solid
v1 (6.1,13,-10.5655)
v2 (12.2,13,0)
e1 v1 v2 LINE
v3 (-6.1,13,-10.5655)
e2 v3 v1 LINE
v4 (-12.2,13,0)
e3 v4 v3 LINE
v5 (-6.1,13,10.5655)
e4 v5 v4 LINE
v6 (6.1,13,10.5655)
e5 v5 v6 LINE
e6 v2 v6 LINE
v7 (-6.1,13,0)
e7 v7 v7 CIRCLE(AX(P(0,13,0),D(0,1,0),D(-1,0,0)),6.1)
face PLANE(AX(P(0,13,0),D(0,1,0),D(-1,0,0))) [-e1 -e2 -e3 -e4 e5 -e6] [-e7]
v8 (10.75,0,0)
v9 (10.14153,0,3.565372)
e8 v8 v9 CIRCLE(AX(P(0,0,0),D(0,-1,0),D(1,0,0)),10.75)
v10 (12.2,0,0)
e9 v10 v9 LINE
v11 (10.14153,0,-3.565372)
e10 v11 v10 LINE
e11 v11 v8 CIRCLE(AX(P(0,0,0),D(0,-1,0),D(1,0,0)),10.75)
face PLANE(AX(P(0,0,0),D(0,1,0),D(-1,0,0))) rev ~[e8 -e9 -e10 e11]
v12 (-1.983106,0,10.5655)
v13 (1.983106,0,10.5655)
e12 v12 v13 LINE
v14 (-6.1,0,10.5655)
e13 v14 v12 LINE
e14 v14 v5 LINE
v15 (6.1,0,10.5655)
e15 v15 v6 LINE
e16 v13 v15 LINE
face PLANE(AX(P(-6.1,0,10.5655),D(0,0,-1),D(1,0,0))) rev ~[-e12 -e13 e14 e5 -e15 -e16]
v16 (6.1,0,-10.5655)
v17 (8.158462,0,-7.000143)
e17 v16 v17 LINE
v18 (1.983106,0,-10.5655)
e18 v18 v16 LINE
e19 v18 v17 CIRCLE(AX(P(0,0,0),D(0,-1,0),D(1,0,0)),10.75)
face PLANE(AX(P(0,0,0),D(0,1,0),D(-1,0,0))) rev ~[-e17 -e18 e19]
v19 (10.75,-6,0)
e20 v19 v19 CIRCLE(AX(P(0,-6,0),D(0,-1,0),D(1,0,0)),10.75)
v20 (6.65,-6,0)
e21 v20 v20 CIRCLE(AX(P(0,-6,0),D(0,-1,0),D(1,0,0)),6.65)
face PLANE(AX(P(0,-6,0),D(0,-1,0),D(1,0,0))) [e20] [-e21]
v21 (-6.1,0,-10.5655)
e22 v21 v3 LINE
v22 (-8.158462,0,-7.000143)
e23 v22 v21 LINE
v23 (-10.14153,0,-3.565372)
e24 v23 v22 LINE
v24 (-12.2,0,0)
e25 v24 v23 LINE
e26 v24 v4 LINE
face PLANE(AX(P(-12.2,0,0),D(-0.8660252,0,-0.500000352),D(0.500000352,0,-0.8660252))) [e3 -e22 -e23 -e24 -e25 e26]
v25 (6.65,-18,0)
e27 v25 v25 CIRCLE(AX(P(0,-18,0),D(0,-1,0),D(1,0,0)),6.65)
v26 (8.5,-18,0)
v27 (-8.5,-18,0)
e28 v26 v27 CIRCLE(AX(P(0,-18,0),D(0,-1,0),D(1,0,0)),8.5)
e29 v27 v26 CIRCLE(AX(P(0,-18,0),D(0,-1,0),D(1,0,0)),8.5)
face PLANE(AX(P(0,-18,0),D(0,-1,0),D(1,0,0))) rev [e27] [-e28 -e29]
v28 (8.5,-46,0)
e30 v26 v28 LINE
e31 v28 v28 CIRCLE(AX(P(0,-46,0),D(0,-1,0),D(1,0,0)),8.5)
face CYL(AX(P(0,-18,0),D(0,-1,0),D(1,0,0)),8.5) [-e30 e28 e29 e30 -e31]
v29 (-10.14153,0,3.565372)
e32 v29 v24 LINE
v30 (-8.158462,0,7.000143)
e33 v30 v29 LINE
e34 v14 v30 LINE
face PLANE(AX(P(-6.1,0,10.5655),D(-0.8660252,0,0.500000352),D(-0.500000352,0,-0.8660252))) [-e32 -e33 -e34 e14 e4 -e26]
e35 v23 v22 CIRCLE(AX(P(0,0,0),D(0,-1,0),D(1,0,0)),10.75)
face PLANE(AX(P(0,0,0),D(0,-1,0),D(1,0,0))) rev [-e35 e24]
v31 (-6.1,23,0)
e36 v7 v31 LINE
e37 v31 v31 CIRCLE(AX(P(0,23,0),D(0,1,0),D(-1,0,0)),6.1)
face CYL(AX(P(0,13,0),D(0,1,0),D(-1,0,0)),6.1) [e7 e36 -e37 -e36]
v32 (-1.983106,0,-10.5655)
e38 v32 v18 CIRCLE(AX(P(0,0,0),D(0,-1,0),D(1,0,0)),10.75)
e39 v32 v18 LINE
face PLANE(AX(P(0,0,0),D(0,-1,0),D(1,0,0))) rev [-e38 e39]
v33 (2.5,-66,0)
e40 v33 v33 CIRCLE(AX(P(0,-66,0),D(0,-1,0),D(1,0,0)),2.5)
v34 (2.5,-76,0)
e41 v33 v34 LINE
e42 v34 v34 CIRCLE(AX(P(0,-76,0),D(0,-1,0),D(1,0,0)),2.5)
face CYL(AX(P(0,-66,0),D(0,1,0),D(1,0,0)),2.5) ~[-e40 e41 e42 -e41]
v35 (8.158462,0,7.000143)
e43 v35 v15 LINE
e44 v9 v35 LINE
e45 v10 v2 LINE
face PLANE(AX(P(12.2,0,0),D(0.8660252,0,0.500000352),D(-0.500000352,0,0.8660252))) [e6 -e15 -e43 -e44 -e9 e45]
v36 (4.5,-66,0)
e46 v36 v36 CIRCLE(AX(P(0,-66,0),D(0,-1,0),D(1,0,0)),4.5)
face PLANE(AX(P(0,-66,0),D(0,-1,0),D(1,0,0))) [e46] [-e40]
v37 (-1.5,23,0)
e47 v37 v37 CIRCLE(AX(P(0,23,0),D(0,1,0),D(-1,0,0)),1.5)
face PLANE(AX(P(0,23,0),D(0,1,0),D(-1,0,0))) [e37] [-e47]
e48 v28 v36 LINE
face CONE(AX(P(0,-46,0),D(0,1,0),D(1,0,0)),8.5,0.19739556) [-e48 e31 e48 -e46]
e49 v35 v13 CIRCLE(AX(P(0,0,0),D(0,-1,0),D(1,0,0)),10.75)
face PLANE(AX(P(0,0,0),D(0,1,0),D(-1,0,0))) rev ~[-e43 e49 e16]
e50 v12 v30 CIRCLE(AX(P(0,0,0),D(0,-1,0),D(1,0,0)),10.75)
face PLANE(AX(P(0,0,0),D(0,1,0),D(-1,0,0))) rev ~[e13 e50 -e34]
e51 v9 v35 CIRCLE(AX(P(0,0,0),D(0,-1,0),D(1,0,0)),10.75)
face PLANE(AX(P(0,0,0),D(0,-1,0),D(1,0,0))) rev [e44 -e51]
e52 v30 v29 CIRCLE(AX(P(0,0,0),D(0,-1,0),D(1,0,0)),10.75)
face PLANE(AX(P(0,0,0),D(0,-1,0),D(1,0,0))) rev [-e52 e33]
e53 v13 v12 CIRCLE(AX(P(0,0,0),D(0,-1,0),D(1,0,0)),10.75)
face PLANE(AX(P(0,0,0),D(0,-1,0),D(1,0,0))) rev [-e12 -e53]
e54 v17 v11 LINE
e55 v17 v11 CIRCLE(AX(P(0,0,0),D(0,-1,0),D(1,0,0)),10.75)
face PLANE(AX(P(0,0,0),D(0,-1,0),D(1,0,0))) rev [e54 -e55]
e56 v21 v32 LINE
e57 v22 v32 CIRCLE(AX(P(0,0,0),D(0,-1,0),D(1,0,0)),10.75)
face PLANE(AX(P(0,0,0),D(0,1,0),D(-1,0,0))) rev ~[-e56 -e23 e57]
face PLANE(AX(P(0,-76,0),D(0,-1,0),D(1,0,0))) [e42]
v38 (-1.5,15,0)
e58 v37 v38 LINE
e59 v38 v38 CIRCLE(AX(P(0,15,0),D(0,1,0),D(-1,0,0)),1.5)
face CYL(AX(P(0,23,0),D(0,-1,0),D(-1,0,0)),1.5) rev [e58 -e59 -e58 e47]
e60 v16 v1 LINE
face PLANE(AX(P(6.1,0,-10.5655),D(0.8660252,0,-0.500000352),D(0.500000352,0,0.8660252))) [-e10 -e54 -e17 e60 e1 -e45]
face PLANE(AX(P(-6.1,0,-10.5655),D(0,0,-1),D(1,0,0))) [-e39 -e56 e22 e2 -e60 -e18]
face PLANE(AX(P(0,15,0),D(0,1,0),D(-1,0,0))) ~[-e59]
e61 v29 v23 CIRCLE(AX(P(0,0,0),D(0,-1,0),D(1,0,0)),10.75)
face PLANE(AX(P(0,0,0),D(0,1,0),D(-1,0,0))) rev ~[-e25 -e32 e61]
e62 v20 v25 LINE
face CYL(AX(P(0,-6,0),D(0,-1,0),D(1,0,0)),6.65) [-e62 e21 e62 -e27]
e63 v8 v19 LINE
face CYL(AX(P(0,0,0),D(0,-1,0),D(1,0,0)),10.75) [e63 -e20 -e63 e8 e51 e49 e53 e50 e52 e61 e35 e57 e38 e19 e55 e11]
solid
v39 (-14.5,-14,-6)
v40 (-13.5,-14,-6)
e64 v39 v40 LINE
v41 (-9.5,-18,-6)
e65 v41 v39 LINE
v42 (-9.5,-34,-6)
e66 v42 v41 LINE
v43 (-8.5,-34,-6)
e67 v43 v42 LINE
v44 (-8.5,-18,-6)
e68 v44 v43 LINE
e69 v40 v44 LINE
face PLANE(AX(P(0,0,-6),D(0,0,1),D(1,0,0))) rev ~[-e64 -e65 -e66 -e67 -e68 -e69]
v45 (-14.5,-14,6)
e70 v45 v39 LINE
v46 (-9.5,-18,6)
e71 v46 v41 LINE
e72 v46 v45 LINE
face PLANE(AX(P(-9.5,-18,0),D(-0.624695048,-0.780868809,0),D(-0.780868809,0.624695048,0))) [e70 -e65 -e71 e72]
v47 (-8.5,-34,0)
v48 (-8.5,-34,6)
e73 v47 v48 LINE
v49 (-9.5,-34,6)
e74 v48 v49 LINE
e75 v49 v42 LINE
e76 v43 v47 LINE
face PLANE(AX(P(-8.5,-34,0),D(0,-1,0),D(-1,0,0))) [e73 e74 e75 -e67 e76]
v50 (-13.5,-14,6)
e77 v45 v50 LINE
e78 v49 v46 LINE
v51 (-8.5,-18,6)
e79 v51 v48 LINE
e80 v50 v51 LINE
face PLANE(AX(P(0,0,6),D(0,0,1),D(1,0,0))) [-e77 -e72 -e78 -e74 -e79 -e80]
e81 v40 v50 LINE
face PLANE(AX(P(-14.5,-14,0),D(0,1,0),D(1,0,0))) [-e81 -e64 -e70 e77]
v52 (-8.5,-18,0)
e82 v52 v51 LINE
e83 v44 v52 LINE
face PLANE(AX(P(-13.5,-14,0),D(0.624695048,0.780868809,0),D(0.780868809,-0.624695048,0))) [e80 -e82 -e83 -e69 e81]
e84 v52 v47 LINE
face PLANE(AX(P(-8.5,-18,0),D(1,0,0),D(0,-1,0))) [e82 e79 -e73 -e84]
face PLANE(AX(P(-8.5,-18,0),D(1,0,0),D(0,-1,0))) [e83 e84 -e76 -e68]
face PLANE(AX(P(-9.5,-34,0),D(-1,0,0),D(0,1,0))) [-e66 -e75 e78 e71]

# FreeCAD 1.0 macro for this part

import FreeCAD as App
import Part
import Sketcher

V = App.Vector
Q = App.Units.Quantity


def add_polygon(sketch, points):
    """Adds a closed chain of lines whose ends are joined by coincident constraints."""
    first, n = sketch.GeometryCount, len(points)
    for a, b in zip(points, points[1:] + points[:1]):
        sketch.addGeometry(Part.LineSegment(App.Vector(*a, 0), App.Vector(*b, 0)), False)
    for i in range(n):
        sketch.addConstraint(Sketcher.Constraint("Coincident", first + i, 2, first + (i + 1) % n, 1))

doc = App.newDocument("Part")
body = doc.addObject("PartDesign::Body", "Body")
body.AllowCompound = True

sketch1 = body.newObject("Sketcher::SketchObject", "Sketch")
sketch1.AttachmentSupport = (doc.getObject("XY_Plane"), [""])
sketch1.MapMode = "FlatFace"
add_polygon(sketch1, [(10.8, 0), (0, 0), (0, -66), (4.5, -66), (8.5, -46), (8.5, -18), (6.7, -18), (6.7, -6), (10.8, -6)])
sketch1.addConstraint([
    Sketcher.Constraint("Horizontal", 0),
    Sketcher.Constraint("Vertical", 1),
    Sketcher.Constraint("Horizontal", 2),
    Sketcher.Constraint("Vertical", 4),
    Sketcher.Constraint("Horizontal", 5),
    Sketcher.Constraint("Vertical", 6),
    Sketcher.Constraint("Horizontal", 7),
    Sketcher.Constraint("Vertical", 8),
    Sketcher.Constraint("Coincident", 0, 2, -1, 1),
    Sketcher.Constraint("DistanceY", 4, 1, 4, 2, 28.0),
    Sketcher.Constraint("DistanceY", 6, 1, 6, 2, 12.0),
    Sketcher.Constraint("DistanceY", 8, 1, 8, 2, 6.0),
    Sketcher.Constraint("DistanceX", 2, 1, 2, 2, 4.5),
    Sketcher.Constraint("DistanceX", 7, 1, 7, 2, 4.1),
    Sketcher.Constraint("DistanceY", 2, 2, 3, 2, 20.0),
    Sketcher.Constraint("DistanceX", 0, 2, 0, 1, 10.75),
    Sketcher.Constraint("DistanceX", 5, 2, 5, 1, 1.85),
])
revolution = body.newObject("PartDesign::Revolution", "Revolution")
revolution.Profile = sketch1
revolution.ReferenceAxis = (sketch1, ["V_Axis"])
revolution.Angle = 360

sketch2 = body.newObject("Sketcher::SketchObject", "Sketch001")
sketch2.AttachmentSupport = (doc.getObject("XZ_Plane"), [""])
sketch2.MapMode = "FlatFace"
add_polygon(sketch2, [(6, -11), (-6, -11), (-12, 0), (-6, 11), (6, 11), (12, 0)])
sketch2.addConstraint([
    Sketcher.Constraint("Horizontal", 0),
    Sketcher.Constraint("Horizontal", 3),
    Sketcher.Constraint("Symmetric", 0, 2, 3, 2, -1, 1),
    Sketcher.Constraint("Symmetric", 1, 2, 4, 2, -1, 1),
    Sketcher.Constraint("PointOnObject", 1, 2, -1),
    Sketcher.Constraint("Parallel", 2, 5),
    Sketcher.Constraint("Vertical", 0, 2, 2, 2),
    Sketcher.Constraint("DistanceX", 1, 2, 4, 2, 24.4),
    Sketcher.Constraint("Angle", 1, Q("120 deg")),
    Sketcher.Constraint("DistanceX", 0, 2, 0, 1, 12.2),
])
pad1 = body.newObject("PartDesign::Pad", "Pad")
pad1.Profile = sketch2
pad1.Length = 13
pad1.Reversed = True

sketch3 = body.newObject("Sketcher::SketchObject", "Sketch002")
sketch3.AttachmentSupport = (doc.getObject("XY_Plane"), [""])
sketch3.MapMode = "FlatFace"
add_polygon(sketch3, [(-6.1, 23), (-6.1, 13), (0, 13), (0, 15), (-1.5, 15), (-1.5, 23)])
sketch3.addConstraint([
    Sketcher.Constraint("Vertical", 0),
    Sketcher.Constraint("Horizontal", 1),
    Sketcher.Constraint("Vertical", 2),
    Sketcher.Constraint("Horizontal", 3),
    Sketcher.Constraint("Vertical", 4),
    Sketcher.Constraint("Horizontal", 5),
    Sketcher.Constraint("PointOnObject", 1, 2, -2),
    Sketcher.Constraint("DistanceY", 0, 2, 0, 1, 10.0),
    Sketcher.Constraint("DistanceY", 4, 1, 4, 2, 8.0),
    Sketcher.Constraint("DistanceX", 3, 2, 3, 1, 1.5),
    Sketcher.Constraint("DistanceX", 1, 1, 1, 2, 6.1),
    Sketcher.Constraint("DistanceY", -1, 1, 0, 2, 13.0),
])
revolution2 = body.newObject("PartDesign::Revolution", "Revolution001")
revolution2.Profile = sketch3
revolution2.ReferenceAxis = (sketch3, ["V_Axis"])
revolution2.Angle = 360

sketch4 = body.newObject("Sketcher::SketchObject", "Sketch003")
sketch4.AttachmentSupport = (doc.getObject("XY_Plane"), [""])
sketch4.MapMode = "FlatFace"
add_polygon(sketch4, [(-9.5, -34), (-8.5, -34), (-8.5, -18), (-13.5, -14), (-14.5, -14), (-9.5, -18)])
sketch4.addConstraint([
    Sketcher.Constraint("Horizontal", 0),
    Sketcher.Constraint("Vertical", 1),
    Sketcher.Constraint("Horizontal", 3),
    Sketcher.Constraint("Vertical", 5),
    Sketcher.Constraint("Parallel", 2, 4),
    Sketcher.Constraint("Horizontal", 1, 2, 4, 2),
    Sketcher.Constraint("DistanceX", 0, 1, 0, 2, 1.0),
    Sketcher.Constraint("DistanceY", 1, 1, 1, 2, 16.0),
    Sketcher.Constraint("DistanceX", 2, 2, 1, 2, 5.0),
    Sketcher.Constraint("DistanceY", 1, 2, 2, 2, 4.0),
    Sketcher.Constraint("DistanceY", 0, 2, -1, 1, 34.0),
    Sketcher.Constraint("DistanceX", 0, 2, -1, 1, 8.5),
])
pad2 = body.newObject("PartDesign::Pad", "Pad001")
pad2.Profile = sketch4
pad2.Length = 12
pad2.Midplane = True

sketch5 = body.newObject("Sketcher::SketchObject", "Sketch004")
sketch5.AttachmentSupport = (doc.getObject("XZ_Plane"), [""])
sketch5.MapMode = "FlatFace"
sketch5.AttachmentOffset = App.Placement(V(0, 0, 66), App.Rotation())
sketch5.addGeometry(Part.Circle(V(0, 0, 0), V(0, 0, 1), 2.5), False)
sketch5.addConstraint([
    Sketcher.Constraint("Coincident", 0, 3, -1, 1),
    Sketcher.Constraint("Diameter", 0, 5.0),
])
pad3 = body.newObject("PartDesign::Pad", "Pad002")
pad3.Profile = sketch5
pad3.Length = 10

doc.recompute()
